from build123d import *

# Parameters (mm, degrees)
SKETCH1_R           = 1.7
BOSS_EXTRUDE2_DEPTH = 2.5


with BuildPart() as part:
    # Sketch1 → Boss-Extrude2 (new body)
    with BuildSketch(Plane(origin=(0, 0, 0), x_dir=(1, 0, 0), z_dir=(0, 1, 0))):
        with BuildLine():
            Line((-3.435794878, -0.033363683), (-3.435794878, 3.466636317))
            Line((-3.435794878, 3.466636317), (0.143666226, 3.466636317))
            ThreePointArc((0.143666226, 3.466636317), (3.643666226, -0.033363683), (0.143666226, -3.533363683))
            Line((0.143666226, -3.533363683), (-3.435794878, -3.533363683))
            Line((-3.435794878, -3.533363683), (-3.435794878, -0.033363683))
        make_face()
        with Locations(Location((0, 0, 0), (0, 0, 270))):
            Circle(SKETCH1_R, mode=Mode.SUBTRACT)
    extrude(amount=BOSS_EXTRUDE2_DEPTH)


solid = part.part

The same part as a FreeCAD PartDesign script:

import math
import FreeCAD as App
import Part
import Sketcher
from FreeCAD import Vector

doc = App.newDocument("Part")
params = doc.addObject("Spreadsheet::Sheet", "Params")
for row, (alias, value) in enumerate([
    ("sketch1_diameter", "3.4 mm"),
    ("sketch1_radius", "3.5 mm"),
    ("pad1_length", "2.5 mm"),
], start=1):
    params.set(f"A{row}", alias)
    params.set(f"B{row}", "=" + value)
    params.setAlias(f"B{row}", alias)

body = doc.addObject("PartDesign::Body", "Body")

# Sketch on XZ plane
sketch1 = body.newObject("Sketcher::SketchObject", "Sketch")
sketch1.AttachmentSupport = (doc.getObject("XZ_Plane"), [""])
sketch1.MapMode = "FlatFace"
sketch1.addGeometry([
    Part.LineSegment(Vector(0.1, -3.5, 0), Vector(-3.4, -3.5, 0)),  # 0
    Part.LineSegment(Vector(-3.4, -3.5, 0), Vector(-3.4, 3.5, 0)),  # 1
    Part.LineSegment(Vector(-3.4, 3.5, 0), Vector(0.1, 3.5, 0)),  # 2
    Part.ArcOfCircle(Part.Circle(Vector(0.1, 0, 0), Vector(0, 0, 1), 3.5), math.radians(-90), math.radians(90)),  # 3
    Part.Circle(Vector(0, 0, 0), Vector(0, 0, 1), 1.7),  # 4
], False)
sketch1.addConstraint([
    Sketcher.Constraint("Coincident", 0, 2, 1, 1),
    Sketcher.Constraint("Coincident", 1, 2, 2, 1),
    Sketcher.Constraint("Tangent", 2, 2, 3, 2),
    Sketcher.Constraint("Tangent", 3, 1, 0, 1),
    Sketcher.Constraint("Horizontal", 0),
    Sketcher.Constraint("Vertical", 1),
    Sketcher.Constraint("Horizontal", 2),
    Sketcher.Constraint("Coincident", 4, 3, -1, 1),
    Sketcher.Constraint("Diameter", 4, 3.4),
    Sketcher.Constraint("Radius", 3, 3.5),
    Sketcher.Constraint("DistanceX", 0, 2, 0, 1, 3.579461),
    Sketcher.Constraint("DistanceX", -1, 1, 3, 3, 0.143666),
    Sketcher.Constraint("DistanceY", -1, 1, 3, 3, 0.033364),
])
sketch1.setExpression("Constraints[8]", "Params.sketch1_diameter")
sketch1.setExpression("Constraints[9]", "Params.sketch1_radius")
pad1 = body.newObject("PartDesign::Pad", "Pad")
pad1.Profile = sketch1
pad1.setExpression("Length", "Params.pad1_length")
pad1.Reversed = True

doc.recompute()
